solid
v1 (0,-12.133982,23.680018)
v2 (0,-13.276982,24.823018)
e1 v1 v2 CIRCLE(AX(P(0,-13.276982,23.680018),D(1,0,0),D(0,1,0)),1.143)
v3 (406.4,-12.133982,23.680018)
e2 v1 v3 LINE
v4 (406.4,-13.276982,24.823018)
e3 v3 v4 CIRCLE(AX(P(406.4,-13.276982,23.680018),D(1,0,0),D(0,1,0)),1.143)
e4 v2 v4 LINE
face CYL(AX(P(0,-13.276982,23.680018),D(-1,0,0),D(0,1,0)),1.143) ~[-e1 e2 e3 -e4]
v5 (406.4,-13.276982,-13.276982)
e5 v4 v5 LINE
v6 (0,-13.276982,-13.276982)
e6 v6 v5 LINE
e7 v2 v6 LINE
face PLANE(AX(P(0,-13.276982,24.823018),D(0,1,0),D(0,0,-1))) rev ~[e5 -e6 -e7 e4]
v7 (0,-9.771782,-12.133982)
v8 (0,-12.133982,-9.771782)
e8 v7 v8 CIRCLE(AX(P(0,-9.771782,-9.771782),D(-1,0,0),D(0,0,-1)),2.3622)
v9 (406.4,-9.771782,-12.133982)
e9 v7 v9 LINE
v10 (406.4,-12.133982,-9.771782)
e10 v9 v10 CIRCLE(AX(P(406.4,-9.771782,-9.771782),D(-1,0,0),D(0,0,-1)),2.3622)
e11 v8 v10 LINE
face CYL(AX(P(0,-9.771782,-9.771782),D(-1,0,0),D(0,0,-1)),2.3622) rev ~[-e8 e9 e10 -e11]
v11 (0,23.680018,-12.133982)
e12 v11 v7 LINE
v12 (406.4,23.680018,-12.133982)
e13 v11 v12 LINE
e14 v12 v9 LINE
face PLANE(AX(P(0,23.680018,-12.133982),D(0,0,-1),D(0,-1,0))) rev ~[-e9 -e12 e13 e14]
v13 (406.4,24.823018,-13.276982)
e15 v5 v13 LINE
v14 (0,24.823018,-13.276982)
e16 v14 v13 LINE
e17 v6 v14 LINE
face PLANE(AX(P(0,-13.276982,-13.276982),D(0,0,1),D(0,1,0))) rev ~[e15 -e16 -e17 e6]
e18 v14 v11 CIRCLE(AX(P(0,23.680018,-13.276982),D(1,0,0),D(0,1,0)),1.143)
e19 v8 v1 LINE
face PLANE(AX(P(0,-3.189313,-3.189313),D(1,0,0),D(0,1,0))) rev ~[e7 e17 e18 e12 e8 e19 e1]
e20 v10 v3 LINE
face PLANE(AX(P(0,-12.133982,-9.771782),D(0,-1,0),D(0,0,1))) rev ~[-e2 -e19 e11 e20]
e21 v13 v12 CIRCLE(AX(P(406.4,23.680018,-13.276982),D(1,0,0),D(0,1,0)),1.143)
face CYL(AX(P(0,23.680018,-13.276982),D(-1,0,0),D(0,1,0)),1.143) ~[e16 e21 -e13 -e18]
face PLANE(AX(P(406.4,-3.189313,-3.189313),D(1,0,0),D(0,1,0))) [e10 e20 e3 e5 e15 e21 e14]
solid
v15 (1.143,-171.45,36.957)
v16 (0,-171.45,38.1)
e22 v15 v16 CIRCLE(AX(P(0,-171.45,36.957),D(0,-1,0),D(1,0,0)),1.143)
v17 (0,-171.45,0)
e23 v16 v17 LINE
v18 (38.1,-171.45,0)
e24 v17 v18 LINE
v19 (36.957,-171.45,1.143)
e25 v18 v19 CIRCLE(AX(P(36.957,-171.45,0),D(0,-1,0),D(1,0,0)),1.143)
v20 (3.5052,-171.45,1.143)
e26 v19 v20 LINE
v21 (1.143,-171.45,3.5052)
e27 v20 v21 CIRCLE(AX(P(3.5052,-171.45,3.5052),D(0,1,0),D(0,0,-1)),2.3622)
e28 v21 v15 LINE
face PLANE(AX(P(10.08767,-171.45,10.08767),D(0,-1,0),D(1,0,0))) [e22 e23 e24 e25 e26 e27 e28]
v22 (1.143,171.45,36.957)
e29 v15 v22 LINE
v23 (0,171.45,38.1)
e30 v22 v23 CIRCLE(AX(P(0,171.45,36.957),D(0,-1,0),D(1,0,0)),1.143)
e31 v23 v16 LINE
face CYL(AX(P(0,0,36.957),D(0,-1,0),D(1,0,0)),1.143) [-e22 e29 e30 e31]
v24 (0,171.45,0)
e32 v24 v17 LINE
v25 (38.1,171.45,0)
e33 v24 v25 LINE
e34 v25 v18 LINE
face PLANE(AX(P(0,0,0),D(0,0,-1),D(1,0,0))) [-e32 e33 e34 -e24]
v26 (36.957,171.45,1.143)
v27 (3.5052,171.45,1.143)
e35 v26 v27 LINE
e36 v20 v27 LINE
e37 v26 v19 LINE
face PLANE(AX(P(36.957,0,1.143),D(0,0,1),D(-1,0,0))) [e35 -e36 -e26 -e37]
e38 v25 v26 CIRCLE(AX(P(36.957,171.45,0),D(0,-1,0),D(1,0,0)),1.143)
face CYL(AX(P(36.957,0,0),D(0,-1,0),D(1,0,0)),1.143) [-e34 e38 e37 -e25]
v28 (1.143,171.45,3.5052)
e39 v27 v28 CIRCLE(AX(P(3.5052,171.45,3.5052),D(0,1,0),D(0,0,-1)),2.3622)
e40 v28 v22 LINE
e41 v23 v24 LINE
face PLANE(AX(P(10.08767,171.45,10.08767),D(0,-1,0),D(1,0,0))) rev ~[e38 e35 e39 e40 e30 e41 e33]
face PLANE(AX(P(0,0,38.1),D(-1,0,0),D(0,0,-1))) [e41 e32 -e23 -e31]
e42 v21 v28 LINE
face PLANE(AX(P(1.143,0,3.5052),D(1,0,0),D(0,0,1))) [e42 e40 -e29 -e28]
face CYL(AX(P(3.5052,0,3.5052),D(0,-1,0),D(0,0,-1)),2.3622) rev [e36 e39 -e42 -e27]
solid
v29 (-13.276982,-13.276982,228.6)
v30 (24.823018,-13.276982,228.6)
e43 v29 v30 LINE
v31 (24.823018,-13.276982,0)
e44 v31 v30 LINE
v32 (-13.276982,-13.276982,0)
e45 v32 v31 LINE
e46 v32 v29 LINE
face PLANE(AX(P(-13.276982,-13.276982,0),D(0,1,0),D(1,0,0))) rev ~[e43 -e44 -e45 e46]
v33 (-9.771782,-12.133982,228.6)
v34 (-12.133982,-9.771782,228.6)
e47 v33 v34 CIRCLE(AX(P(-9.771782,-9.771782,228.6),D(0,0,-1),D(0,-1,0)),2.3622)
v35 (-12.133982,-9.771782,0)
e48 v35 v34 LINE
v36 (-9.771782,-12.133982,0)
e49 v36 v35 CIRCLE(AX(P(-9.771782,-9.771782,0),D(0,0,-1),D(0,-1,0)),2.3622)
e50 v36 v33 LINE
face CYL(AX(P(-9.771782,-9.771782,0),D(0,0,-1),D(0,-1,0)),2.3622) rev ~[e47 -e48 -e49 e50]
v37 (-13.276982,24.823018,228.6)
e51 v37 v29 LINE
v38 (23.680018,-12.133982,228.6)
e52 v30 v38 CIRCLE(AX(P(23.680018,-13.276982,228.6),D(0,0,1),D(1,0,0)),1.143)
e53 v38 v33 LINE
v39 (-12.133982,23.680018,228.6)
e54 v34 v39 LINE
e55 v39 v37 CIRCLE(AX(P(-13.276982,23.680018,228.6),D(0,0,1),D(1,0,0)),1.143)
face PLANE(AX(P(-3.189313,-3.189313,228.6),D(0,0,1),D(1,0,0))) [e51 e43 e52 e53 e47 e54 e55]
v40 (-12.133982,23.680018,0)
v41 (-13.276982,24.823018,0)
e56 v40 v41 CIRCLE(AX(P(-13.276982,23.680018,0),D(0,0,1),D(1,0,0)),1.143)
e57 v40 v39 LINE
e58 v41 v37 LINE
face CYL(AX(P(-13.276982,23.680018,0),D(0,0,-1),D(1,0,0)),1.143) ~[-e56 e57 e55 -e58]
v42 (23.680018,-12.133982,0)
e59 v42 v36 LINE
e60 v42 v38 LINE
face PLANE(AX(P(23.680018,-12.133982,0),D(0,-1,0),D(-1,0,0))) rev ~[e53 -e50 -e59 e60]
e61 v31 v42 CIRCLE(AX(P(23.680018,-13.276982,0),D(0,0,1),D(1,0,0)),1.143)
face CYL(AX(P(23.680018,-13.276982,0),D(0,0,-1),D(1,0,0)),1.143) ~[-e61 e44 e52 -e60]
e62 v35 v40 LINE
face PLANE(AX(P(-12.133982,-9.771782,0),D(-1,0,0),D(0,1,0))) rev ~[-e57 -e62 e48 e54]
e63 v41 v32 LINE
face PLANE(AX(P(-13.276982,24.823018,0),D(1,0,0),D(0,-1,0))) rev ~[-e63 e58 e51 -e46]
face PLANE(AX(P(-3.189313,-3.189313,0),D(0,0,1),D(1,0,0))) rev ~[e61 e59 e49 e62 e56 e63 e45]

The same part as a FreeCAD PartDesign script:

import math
import FreeCAD as App
import Part
import Sketcher
from FreeCAD import Vector
Q = App.Units.Quantity

doc = App.newDocument("Part")
body = doc.addObject("PartDesign::Body", "Body")

# Sketch on XZ plane
sketch1 = body.newObject("Sketcher::SketchObject", "Sketch")
sketch1.AttachmentSupport = (doc.getObject("XZ_Plane"), [""])
sketch1.MapMode = "FlatFace"
sketch1.addGeometry([
    Part.ArcOfCircle(Part.Circle(Vector(0, 37, 0), Vector(0, 0, 1), 1.1), math.radians(0), math.radians(90)),  # 0
    Part.LineSegment(Vector(0, 38.1, 0), Vector(0, 0, 0)),  # 1
    Part.LineSegment(Vector(0, 0, 0), Vector(38.1, 0, 0)),  # 2
    Part.ArcOfCircle(Part.Circle(Vector(37, 0, 0), Vector(0, 0, 1), 1.1), math.radians(0), math.radians(90)),  # 3
    Part.LineSegment(Vector(37, 1.1, 0), Vector(3.5, 1.1, 0)),  # 4
    Part.ArcOfCircle(Part.Circle(Vector(3.5, 3.5, 0), Vector(0, 0, 1), 2.4), math.radians(180), math.radians(270)),  # 5
    Part.LineSegment(Vector(1.1, 3.5, 0), Vector(1.1, 37, 0)),  # 6
], False)
sketch1.addConstraint([
    Sketcher.Constraint("Coincident", 0, 2, 1, 1),
    Sketcher.Constraint("Coincident", 1, 2, 2, 1),
    Sketcher.Constraint("Coincident", 2, 2, 3, 1),
    Sketcher.Constraint("Tangent", 3, 2, 4, 1),
    Sketcher.Constraint("Tangent", 4, 2, 5, 2),
    Sketcher.Constraint("Tangent", 5, 1, 6, 1),
    Sketcher.Constraint("Tangent", 6, 2, 0, 1),
    Sketcher.Constraint("Vertical", 1),
    Sketcher.Constraint("Horizontal", 2),
    Sketcher.Constraint("Horizontal", 4),
    Sketcher.Constraint("Vertical", 6),
    Sketcher.Constraint("Coincident", 1, 2, -1, 1),
    Sketcher.Constraint("Equal", 0, 3),
    Sketcher.Constraint("PointOnObject", 0, 3, -2),
    Sketcher.Constraint("PointOnObject", 3, 3, -1),
    Sketcher.Constraint("Equal", 2, 1),
    Sketcher.Constraint("DistanceX", 2, 1, 2, 2, Q("1.5 in")),
    Sketcher.Constraint("Radius", 0, Q("0.045 in")),
    Sketcher.Constraint("Radius", 5, Q("0.093 in")),
])
pad1 = body.newObject("PartDesign::Pad", "Pad")
pad1.Profile = sketch1
pad1.Length = Q("13.5 in")
pad1.Midplane = True
body2 = doc.addObject("PartDesign::Body", "Body001")

# Sketch on XY plane
sketch2 = body2.newObject("Sketcher::SketchObject", "Sketch001")
sketch2.AttachmentSupport = (doc.getObject("XY_Plane001"), [""])
sketch2.MapMode = "FlatFace"
sketch2.addGeometry([
    Part.ArcOfCircle(Part.Circle(Vector(-13.3, 23.7, 0), Vector(0, 0, 1), 1.1), math.radians(0), math.radians(90)),  # 0
    Part.LineSegment(Vector(-13.3, 24.8, 0), Vector(-13.3, -13.3, 0)),  # 1
    Part.LineSegment(Vector(-13.3, -13.3, 0), Vector(24.8, -13.3, 0)),  # 2
    Part.ArcOfCircle(Part.Circle(Vector(23.7, -13.3, 0), Vector(0, 0, 1), 1.1), math.radians(0), math.radians(90)),  # 3
    Part.LineSegment(Vector(23.7, -12.1, 0), Vector(-9.8, -12.1, 0)),  # 4
    Part.ArcOfCircle(Part.Circle(Vector(-9.8, -9.8, 0), Vector(0, 0, 1), 2.4), math.radians(180), math.radians(270)),  # 5
    Part.LineSegment(Vector(-12.1, -9.8, 0), Vector(-12.1, 23.7, 0)),  # 6
], False)
sketch2.addConstraint([
    Sketcher.Constraint("Coincident", 0, 2, 1, 1),
    Sketcher.Constraint("Coincident", 1, 2, 2, 1),
    Sketcher.Constraint("Coincident", 2, 2, 3, 1),
    Sketcher.Constraint("Tangent", 3, 2, 4, 1),
    Sketcher.Constraint("Tangent", 4, 2, 5, 2),
    Sketcher.Constraint("Tangent", 5, 1, 6, 1),
    Sketcher.Constraint("Tangent", 6, 2, 0, 1),
    Sketcher.Constraint("Vertical", 1),
    Sketcher.Constraint("Horizontal", 2),
    Sketcher.Constraint("Horizontal", 4),
    Sketcher.Constraint("Vertical", 6),
    Sketcher.Constraint("Equal", 0, 3),
    Sketcher.Constraint("Horizontal", 3, 3, 1, 2),
    Sketcher.Constraint("Equal", 2, 1),
    Sketcher.Constraint("Equal", 4, 6),
    Sketcher.Constraint("DistanceX", 2, 1, 2, 2, Q("1.5 in")),
    Sketcher.Constraint("Radius", 0, Q("0.045 in")),
    Sketcher.Constraint("Radius", 5, Q("0.093 in")),
    Sketcher.Constraint("DistanceX", 0, 3, -1, 1, Q("13.276982 mm")),
    Sketcher.Constraint("DistanceY", -1, 1, 0, 3, Q("23.680018 mm")),
])
pad2 = body2.newObject("PartDesign::Pad", "Pad001")
pad2.Profile = sketch2
pad2.Length = Q("9 in")
body3 = doc.addObject("PartDesign::Body", "Body002")

# Sketch on YZ plane
sketch3 = body3.newObject("Sketcher::SketchObject", "Sketch002")
sketch3.AttachmentSupport = (doc.getObject("YZ_Plane002"), [""])
sketch3.MapMode = "FlatFace"
sketch3.addGeometry([
    Part.ArcOfCircle(Part.Circle(Vector(-13.3, 23.7, 0), Vector(0, 0, 1), 1.1), math.radians(0), math.radians(90)),  # 0
    Part.LineSegment(Vector(-13.3, 24.8, 0), Vector(-13.3, -13.3, 0)),  # 1
    Part.LineSegment(Vector(-13.3, -13.3, 0), Vector(24.8, -13.3, 0)),  # 2
    Part.ArcOfCircle(Part.Circle(Vector(23.7, -13.3, 0), Vector(0, 0, 1), 1.1), math.radians(0), math.radians(90)),  # 3
    Part.LineSegment(Vector(23.7, -12.1, 0), Vector(-9.8, -12.1, 0)),  # 4
    Part.ArcOfCircle(Part.Circle(Vector(-9.8, -9.8, 0), Vector(0, 0, 1), 2.4), math.radians(180), math.radians(270)),  # 5
    Part.LineSegment(Vector(-12.1, -9.8, 0), Vector(-12.1, 23.7, 0)),  # 6
], False)
sketch3.addConstraint([
    Sketcher.Constraint("Coincident", 0, 2, 1, 1),
    Sketcher.Constraint("Coincident", 1, 2, 2, 1),
    Sketcher.Constraint("Coincident", 2, 2, 3, 1),
    Sketcher.Constraint("Tangent", 3, 2, 4, 1),
    Sketcher.Constraint("Tangent", 4, 2, 5, 2),
    Sketcher.Constraint("Tangent", 5, 1, 6, 1),
    Sketcher.Constraint("Tangent", 6, 2, 0, 1),
    Sketcher.Constraint("Vertical", 1),
    Sketcher.Constraint("Horizontal", 2),
    Sketcher.Constraint("Horizontal", 4),
    Sketcher.Constraint("Vertical", 6),
    Sketcher.Constraint("Equal", 0, 3),
    Sketcher.Constraint("Horizontal", 3, 3, 1, 2),
    Sketcher.Constraint("Equal", 2, 1),
    Sketcher.Constraint("Equal", 4, 6),
    Sketcher.Constraint("DistanceX", 2, 1, 2, 2, Q("1.5 in")),
    Sketcher.Constraint("Radius", 0, Q("0.045 in")),
    Sketcher.Constraint("Radius", 5, Q("0.093 in")),
    Sketcher.Constraint("DistanceX", 0, 3, -1, 1, Q("13.276982 mm")),
    Sketcher.Constraint("DistanceY", -1, 1, 0, 3, Q("23.680018 mm")),
])
pad3 = body3.newObject("PartDesign::Pad", "Pad002")
pad3.Profile = sketch3
pad3.Length = Q("16 in")

doc.recompute()
